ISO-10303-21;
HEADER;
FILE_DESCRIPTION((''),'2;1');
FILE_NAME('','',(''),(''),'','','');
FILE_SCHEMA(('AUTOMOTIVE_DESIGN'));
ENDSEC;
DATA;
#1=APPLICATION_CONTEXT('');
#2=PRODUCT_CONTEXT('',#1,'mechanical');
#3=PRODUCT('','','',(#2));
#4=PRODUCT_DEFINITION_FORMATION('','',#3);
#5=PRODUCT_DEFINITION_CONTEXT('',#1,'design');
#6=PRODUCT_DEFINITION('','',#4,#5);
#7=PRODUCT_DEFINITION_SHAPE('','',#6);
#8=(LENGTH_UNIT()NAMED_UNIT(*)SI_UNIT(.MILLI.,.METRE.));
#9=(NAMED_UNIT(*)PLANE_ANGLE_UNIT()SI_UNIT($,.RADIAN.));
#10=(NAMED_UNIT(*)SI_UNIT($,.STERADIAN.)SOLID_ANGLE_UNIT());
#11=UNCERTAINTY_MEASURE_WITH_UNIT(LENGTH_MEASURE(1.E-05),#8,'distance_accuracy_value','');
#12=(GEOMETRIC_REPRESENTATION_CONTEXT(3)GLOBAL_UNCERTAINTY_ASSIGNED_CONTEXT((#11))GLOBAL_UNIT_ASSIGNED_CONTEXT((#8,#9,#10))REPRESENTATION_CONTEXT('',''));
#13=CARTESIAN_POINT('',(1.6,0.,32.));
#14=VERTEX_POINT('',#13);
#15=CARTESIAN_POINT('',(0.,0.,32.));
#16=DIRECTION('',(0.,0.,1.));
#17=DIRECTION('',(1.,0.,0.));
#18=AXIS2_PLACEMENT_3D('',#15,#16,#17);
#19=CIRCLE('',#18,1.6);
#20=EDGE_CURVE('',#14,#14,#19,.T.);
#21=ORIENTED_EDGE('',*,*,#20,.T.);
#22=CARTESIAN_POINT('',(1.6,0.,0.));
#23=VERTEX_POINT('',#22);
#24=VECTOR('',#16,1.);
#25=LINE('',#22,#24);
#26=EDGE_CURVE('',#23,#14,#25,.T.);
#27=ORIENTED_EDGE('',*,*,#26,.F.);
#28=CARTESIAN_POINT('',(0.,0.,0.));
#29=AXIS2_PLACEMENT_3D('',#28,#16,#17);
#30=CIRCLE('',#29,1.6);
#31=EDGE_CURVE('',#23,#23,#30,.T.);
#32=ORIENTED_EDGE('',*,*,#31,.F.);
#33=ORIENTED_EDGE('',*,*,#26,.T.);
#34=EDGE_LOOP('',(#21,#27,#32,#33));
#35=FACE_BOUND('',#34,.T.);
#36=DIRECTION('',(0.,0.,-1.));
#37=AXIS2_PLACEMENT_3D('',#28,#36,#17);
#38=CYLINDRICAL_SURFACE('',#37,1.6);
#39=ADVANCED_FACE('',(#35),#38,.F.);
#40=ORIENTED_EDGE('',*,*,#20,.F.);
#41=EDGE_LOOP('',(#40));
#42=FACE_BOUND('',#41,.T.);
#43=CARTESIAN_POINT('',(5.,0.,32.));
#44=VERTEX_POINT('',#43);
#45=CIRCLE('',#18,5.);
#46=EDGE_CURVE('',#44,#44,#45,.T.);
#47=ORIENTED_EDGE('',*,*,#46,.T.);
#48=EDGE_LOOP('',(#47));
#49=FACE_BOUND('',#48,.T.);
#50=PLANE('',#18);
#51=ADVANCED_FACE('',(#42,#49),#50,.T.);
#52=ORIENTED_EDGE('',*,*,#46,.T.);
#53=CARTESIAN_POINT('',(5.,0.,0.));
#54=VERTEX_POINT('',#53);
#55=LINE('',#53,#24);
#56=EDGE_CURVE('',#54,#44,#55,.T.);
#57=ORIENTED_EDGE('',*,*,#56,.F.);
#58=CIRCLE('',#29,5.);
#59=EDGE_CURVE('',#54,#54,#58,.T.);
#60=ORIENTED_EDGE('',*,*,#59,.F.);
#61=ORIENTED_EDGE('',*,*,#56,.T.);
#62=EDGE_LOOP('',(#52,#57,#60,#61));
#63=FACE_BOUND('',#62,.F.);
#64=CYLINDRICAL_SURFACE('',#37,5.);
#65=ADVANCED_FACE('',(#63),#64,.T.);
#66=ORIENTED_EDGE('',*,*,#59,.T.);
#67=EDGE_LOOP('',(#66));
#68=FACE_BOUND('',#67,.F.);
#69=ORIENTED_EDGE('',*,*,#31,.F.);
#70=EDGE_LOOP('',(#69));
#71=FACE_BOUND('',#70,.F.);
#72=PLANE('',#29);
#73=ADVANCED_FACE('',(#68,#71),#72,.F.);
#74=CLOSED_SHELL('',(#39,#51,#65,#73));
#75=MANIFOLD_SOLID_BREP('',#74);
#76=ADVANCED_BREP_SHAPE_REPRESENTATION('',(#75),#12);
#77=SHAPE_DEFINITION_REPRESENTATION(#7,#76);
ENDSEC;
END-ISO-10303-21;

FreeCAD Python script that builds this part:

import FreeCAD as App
import Part
import Sketcher

doc = App.newDocument("Part")
body = doc.addObject("PartDesign::Body", "Body")

# Sketch on XY plane
sketch1 = body.newObject("Sketcher::SketchObject", "Sketch")
sketch1.AttachmentSupport = (doc.getObject("XY_Plane"), [""])
sketch1.MapMode = "FlatFace"
sketch1.addGeometry(Part.Circle(App.Vector(0, 0, 0), App.Vector(0, 0, 1), 5), False)
sketch1.addGeometry(Part.Circle(App.Vector(0, 0, 0), App.Vector(0, 0, 1), 1.6), False)
sketch1.addConstraint(Sketcher.Constraint("Coincident", 0, 3, -1, 1))
sketch1.addConstraint(Sketcher.Constraint("Coincident", 1, 3, -1, 1))
sketch1.addConstraint(Sketcher.Constraint("Diameter", 0, 10.0))
sketch1.addConstraint(Sketcher.Constraint("Diameter", 1, 3.2))
pad1 = body.newObject("PartDesign::Pad", "Pad")
pad1.Profile = sketch1
pad1.Length = 32

doc.recompute()
